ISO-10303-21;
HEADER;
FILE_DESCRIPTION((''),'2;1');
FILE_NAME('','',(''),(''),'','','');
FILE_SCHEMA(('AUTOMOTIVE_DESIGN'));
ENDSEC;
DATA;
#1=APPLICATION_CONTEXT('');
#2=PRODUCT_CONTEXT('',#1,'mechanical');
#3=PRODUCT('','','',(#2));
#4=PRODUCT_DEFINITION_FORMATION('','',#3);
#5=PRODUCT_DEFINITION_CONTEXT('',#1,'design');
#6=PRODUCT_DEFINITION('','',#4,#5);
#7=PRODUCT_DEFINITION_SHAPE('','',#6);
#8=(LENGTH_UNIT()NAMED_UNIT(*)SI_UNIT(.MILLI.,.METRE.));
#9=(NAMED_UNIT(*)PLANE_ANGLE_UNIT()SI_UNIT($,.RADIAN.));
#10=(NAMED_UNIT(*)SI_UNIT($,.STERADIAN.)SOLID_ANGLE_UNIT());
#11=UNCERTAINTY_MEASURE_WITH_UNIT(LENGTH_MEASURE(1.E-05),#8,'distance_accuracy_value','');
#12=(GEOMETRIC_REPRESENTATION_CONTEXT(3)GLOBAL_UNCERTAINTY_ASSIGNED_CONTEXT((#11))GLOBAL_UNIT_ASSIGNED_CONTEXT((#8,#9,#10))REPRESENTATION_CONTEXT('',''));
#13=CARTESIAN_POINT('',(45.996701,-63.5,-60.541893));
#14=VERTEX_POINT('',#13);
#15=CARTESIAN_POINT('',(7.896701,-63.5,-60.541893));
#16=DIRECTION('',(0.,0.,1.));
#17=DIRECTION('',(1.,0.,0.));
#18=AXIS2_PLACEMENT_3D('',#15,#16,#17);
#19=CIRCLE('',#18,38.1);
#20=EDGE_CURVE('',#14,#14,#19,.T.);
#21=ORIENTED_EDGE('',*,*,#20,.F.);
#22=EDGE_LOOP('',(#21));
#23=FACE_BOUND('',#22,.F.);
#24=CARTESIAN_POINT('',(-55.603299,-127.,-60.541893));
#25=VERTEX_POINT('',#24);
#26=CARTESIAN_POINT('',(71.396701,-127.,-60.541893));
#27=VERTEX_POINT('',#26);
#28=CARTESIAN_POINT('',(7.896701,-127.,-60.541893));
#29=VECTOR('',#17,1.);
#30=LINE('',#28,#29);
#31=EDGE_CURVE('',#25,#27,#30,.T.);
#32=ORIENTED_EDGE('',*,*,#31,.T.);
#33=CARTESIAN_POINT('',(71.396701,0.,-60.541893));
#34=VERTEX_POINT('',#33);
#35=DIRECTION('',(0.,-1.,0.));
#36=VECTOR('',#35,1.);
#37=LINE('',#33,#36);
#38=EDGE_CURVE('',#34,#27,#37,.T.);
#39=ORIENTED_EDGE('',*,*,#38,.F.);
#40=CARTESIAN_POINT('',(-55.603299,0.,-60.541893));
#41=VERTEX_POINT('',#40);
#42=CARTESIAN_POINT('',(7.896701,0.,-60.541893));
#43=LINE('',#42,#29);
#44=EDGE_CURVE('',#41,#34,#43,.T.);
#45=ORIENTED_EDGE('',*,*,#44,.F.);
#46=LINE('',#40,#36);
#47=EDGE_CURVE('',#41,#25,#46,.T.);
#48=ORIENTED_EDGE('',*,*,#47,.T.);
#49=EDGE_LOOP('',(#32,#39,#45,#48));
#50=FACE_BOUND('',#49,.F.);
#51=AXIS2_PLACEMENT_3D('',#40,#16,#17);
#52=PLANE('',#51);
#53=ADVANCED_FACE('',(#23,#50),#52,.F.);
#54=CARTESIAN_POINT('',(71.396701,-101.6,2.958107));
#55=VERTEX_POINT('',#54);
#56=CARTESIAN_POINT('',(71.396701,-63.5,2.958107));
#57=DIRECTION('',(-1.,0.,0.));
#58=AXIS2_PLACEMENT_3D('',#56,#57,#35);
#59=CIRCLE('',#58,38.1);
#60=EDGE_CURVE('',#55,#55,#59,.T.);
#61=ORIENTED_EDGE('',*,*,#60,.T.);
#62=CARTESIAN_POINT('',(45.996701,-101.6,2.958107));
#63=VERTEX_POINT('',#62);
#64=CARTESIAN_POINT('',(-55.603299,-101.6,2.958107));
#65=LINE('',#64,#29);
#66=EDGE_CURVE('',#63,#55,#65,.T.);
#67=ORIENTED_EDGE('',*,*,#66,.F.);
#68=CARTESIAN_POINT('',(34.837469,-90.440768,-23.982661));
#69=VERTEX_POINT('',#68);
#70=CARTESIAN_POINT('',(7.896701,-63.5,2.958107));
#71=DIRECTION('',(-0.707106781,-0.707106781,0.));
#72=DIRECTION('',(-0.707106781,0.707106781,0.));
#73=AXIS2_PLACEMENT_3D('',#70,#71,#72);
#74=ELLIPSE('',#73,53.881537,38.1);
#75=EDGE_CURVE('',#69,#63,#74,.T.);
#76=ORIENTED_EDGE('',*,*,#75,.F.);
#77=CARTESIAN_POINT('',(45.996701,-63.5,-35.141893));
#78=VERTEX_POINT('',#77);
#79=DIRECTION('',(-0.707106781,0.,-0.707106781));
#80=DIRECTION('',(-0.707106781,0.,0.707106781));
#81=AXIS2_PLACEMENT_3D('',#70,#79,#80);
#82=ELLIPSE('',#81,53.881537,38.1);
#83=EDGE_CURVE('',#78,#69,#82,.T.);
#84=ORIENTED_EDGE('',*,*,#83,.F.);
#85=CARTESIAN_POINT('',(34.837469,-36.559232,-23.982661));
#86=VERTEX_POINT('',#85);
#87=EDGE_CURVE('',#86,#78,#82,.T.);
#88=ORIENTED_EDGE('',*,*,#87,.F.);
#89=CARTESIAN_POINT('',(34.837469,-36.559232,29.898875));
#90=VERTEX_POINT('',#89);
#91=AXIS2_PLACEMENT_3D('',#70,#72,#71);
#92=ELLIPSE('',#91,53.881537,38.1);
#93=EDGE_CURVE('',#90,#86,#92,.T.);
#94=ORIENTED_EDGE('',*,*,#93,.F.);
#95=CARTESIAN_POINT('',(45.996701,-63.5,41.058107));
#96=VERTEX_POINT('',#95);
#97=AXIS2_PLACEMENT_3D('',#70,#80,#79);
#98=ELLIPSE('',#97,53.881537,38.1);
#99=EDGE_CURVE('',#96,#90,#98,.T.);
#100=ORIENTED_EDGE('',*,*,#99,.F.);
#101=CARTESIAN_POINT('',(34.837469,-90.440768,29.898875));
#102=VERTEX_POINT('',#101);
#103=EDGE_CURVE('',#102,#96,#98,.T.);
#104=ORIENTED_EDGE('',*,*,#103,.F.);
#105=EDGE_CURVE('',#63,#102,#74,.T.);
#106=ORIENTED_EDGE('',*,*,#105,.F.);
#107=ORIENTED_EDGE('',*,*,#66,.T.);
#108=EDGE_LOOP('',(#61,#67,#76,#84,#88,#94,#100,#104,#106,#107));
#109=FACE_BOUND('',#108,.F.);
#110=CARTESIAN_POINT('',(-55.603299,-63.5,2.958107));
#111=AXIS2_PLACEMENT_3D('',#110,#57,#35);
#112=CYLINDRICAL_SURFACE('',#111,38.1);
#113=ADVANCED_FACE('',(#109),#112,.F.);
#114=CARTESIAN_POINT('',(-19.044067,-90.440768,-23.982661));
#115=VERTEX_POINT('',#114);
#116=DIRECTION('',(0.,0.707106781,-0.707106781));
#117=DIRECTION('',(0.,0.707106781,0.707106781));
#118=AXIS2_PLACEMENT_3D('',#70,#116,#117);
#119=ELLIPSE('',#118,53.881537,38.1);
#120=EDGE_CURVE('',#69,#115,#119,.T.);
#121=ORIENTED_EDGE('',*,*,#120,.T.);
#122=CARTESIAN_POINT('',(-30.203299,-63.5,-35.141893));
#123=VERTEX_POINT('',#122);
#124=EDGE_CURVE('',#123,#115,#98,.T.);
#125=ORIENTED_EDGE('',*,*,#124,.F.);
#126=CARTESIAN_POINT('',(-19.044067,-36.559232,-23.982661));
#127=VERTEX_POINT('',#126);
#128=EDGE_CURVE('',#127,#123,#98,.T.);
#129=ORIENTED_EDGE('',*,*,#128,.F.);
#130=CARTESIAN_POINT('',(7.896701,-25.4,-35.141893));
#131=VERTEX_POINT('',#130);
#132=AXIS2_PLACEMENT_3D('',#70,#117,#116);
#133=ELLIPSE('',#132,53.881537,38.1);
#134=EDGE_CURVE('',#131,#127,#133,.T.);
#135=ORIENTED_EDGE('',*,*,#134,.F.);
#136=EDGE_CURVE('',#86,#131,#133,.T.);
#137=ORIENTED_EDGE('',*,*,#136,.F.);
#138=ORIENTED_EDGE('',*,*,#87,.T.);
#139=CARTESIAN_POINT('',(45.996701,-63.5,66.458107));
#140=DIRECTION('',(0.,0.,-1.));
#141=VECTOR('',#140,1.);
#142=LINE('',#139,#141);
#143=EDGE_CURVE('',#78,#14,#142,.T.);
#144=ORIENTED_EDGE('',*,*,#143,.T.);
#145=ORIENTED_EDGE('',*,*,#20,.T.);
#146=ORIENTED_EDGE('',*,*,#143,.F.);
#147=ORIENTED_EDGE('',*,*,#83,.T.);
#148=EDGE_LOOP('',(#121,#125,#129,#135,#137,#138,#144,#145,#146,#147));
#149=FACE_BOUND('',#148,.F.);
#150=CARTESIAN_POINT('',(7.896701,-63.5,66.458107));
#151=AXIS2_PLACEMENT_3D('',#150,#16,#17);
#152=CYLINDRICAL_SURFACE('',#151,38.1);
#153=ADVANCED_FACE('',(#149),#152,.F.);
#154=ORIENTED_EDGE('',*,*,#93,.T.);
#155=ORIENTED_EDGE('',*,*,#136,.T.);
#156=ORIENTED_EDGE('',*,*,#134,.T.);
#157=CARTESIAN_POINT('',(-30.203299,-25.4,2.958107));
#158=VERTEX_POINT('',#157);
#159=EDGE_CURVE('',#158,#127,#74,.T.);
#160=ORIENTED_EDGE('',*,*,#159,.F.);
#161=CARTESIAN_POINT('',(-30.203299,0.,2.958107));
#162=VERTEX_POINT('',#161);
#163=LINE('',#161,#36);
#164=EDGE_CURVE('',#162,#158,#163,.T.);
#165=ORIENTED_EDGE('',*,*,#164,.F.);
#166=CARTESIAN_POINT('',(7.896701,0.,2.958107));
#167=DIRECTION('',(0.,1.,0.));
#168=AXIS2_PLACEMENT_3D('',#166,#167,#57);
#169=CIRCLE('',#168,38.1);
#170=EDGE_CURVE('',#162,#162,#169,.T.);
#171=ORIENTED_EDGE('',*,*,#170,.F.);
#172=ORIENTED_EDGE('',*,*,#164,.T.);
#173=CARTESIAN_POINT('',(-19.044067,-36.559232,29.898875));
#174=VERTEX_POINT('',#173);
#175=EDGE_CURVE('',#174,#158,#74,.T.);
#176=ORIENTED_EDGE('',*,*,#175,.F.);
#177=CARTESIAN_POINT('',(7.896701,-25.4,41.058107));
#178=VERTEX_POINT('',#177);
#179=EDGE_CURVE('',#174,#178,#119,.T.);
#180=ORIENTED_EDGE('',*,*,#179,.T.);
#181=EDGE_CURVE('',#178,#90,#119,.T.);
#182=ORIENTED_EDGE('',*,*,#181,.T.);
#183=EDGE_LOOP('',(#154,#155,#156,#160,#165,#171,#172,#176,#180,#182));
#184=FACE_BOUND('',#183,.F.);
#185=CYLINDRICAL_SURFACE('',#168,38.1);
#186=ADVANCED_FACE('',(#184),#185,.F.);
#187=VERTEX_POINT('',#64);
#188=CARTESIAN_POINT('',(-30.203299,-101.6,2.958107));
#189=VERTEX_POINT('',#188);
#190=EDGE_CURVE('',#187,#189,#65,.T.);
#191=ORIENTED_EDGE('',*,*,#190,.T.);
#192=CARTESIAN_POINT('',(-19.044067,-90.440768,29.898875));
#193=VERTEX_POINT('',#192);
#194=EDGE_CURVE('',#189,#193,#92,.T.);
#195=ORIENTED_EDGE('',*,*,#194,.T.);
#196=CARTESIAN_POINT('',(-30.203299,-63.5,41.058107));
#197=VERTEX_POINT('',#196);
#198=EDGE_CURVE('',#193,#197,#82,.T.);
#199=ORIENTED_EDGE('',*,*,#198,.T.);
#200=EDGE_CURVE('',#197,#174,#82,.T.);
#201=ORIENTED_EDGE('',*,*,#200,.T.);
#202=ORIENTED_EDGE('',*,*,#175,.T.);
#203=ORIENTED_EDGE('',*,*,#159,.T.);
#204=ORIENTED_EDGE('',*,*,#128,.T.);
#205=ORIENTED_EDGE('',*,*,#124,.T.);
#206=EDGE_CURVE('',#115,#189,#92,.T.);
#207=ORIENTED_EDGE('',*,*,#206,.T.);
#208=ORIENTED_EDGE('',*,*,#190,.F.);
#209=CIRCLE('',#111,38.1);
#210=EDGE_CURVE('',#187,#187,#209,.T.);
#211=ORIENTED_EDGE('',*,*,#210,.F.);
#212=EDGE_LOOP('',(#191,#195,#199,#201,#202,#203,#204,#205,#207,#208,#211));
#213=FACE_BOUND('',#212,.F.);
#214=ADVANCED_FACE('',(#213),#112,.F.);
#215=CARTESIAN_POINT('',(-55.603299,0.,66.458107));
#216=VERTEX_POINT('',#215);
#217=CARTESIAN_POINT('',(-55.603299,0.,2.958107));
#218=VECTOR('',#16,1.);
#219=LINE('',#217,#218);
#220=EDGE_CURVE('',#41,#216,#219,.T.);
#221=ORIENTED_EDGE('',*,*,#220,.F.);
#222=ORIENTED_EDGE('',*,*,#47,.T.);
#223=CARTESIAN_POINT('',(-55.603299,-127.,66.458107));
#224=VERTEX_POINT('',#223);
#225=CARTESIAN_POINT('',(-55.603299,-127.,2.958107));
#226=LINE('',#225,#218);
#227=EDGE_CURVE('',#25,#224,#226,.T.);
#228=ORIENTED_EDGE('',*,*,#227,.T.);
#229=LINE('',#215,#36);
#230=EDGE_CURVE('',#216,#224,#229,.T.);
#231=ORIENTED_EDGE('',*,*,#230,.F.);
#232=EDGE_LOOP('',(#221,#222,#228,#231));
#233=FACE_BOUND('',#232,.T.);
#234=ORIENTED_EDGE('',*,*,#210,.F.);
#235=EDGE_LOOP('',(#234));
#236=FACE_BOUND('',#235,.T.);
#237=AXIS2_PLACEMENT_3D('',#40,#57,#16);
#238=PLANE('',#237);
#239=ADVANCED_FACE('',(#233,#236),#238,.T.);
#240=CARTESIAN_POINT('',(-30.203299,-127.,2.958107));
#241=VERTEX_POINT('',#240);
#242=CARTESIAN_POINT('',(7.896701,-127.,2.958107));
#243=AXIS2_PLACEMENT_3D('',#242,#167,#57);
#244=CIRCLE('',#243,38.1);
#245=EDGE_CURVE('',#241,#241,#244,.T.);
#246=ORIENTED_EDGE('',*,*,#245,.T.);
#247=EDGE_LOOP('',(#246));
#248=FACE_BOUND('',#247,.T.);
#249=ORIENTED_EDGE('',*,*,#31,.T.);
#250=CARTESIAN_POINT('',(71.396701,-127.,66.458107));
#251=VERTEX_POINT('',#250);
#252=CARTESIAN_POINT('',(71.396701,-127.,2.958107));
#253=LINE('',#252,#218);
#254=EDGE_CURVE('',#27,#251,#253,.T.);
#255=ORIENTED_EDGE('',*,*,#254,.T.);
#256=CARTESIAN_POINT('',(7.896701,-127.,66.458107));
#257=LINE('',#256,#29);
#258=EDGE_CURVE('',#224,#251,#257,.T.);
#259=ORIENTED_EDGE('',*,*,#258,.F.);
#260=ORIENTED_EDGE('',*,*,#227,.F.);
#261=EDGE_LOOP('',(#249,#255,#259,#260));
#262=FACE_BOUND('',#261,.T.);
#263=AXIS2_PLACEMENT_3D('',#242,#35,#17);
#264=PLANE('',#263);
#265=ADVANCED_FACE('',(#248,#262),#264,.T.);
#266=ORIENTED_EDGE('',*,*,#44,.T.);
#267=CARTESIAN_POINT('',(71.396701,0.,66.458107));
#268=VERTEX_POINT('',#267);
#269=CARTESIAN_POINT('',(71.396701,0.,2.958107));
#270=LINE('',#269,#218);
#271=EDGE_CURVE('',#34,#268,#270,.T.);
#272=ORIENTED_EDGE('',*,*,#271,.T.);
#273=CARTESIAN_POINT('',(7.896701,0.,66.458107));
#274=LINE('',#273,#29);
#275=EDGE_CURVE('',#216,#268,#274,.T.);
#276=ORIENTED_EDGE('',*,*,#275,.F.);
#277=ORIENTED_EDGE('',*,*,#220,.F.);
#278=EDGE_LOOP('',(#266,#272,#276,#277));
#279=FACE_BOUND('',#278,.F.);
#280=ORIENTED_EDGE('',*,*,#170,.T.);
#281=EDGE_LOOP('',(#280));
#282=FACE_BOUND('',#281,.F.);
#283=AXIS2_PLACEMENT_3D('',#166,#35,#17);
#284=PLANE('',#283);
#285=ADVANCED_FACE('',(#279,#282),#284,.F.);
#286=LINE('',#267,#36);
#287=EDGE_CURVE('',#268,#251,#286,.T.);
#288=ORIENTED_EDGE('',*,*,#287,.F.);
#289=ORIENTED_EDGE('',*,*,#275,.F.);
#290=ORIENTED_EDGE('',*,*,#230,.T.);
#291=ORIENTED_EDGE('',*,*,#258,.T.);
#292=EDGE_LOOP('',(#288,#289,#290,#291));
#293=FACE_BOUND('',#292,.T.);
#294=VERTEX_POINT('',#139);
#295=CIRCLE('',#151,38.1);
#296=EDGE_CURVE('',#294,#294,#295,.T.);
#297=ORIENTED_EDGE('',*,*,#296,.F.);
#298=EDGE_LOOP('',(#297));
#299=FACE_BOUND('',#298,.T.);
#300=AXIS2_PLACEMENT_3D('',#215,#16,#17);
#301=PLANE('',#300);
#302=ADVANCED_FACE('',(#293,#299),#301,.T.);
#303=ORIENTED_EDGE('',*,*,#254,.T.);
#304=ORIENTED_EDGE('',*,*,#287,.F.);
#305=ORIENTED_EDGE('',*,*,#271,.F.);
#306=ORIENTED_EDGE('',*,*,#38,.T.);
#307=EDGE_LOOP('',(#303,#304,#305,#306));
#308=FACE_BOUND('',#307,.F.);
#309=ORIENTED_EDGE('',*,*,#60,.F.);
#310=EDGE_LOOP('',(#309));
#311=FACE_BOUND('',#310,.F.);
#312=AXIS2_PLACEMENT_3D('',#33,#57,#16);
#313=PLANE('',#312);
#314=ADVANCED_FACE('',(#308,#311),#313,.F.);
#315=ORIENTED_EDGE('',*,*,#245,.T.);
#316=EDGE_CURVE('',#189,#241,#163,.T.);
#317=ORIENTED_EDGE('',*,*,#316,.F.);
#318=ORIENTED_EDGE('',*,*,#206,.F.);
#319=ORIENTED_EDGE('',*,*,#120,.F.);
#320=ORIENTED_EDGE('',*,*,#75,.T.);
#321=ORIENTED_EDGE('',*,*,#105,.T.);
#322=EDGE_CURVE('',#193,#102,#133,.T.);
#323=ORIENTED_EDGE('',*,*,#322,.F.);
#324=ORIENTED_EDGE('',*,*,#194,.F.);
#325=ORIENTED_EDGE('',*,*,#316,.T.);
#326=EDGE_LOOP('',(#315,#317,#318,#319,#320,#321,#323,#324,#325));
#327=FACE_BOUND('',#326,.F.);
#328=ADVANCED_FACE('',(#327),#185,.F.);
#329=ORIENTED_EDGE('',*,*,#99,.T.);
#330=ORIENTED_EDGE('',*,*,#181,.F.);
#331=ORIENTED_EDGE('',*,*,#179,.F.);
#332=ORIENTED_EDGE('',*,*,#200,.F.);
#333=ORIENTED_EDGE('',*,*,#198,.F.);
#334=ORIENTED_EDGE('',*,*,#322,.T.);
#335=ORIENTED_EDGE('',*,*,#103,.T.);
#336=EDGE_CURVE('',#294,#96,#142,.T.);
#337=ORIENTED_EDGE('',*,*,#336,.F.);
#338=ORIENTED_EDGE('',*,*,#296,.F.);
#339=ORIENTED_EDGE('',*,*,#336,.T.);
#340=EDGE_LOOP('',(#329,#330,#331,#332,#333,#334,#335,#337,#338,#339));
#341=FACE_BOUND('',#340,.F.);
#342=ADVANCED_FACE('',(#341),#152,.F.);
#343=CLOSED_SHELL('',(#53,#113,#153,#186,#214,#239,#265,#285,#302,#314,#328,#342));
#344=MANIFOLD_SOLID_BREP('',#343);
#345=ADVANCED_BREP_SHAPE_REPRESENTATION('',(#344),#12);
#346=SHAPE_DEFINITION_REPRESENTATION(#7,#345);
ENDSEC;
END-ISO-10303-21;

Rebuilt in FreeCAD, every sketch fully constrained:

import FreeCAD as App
import Part
import Sketcher

V = App.Vector
Q = App.Units.Quantity

doc = App.newDocument("Part")
body = doc.addObject("PartDesign::Body", "Body")

# Sketch on XZ plane
sketch1 = body.newObject("Sketcher::SketchObject", "Sketch")
sketch1.AttachmentSupport = (doc.getObject("XZ_Plane"), [""])
sketch1.MapMode = "FlatFace"
sketch1.addGeometry(Part.LineSegment(V(-55.603299, 66.458107, 0), V(-55.603299, -60.541893, 0)), False)
sketch1.addGeometry(Part.LineSegment(V(-55.603299, -60.541893, 0), V(71.396701, -60.541893, 0)), False)
sketch1.addGeometry(Part.LineSegment(V(71.396701, -60.541893, 0), V(71.396701, 66.458107, 0)), False)
sketch1.addGeometry(Part.LineSegment(V(71.396701, 66.458107, 0), V(-55.603299, 66.458107, 0)), False)
sketch1.addConstraint(Sketcher.Constraint("Coincident", 0, 2, 1, 1))
sketch1.addConstraint(Sketcher.Constraint("Coincident", 1, 2, 2, 1))
sketch1.addConstraint(Sketcher.Constraint("Coincident", 2, 2, 3, 1))
sketch1.addConstraint(Sketcher.Constraint("Coincident", 3, 2, 0, 1))
sketch1.addConstraint(Sketcher.Constraint("Vertical", 0))
sketch1.addConstraint(Sketcher.Constraint("Horizontal", 1))
sketch1.addConstraint(Sketcher.Constraint("Vertical", 2))
sketch1.addConstraint(Sketcher.Constraint("Horizontal", 3))
sketch1.addConstraint(Sketcher.Constraint("Equal", 3, 0))
sketch1.addConstraint(Sketcher.Constraint("DistanceX", 1, 1, 1, 2, Q("5 in")))
sketch1.addConstraint(Sketcher.Constraint("DistanceX", 0, 2, -1, 1, 55.603299))
sketch1.addConstraint(Sketcher.Constraint("DistanceY", 0, 2, -1, 1, 60.541893))
pad1 = body.newObject("PartDesign::Pad", "Pad")
pad1.Profile = sketch1
pad1.Length = Q("5 in")

# Sketch on YZ plane
sketch2 = body.newObject("Sketcher::SketchObject", "Sketch001")
sketch2.AttachmentSupport = (doc.getObject("YZ_Plane"), [""])
sketch2.MapMode = "FlatFace"
sketch2.AttachmentOffset = App.Placement(V(0, 0, -55.603299), App.Rotation())
sketch2.addGeometry(Part.Circle(V(-63.5, 2.958107, 0), V(0, 0, 1), 38.1), False)
sketch2.addConstraint(Sketcher.Constraint("Diameter", 0, Q("3 in")))
sketch2.addConstraint(Sketcher.Constraint("DistanceX", 0, 3, -1, 1, Q("2.5 in")))
sketch2.addConstraint(Sketcher.Constraint("DistanceY", -1, 1, 0, 3, 2.958107))
pocket1 = body.newObject("PartDesign::Pocket", "Pocket")
pocket1.Profile = sketch2
pocket1.Type = "ThroughAll"
pocket1.Reversed = True

# Sketch on XZ plane
sketch3 = body.newObject("Sketcher::SketchObject", "Sketch002")
sketch3.AttachmentSupport = (doc.getObject("XZ_Plane"), [""])
sketch3.MapMode = "FlatFace"
sketch3.addGeometry(Part.Circle(V(7.896701, 2.958107, 0), V(0, 0, 1), 38.1), False)
sketch3.addConstraint(Sketcher.Constraint("Diameter", 0, Q("3 in")))
sketch3.addConstraint(Sketcher.Constraint("DistanceX", -1, 1, 0, 3, 7.896701))
sketch3.addConstraint(Sketcher.Constraint("DistanceY", -1, 1, 0, 3, 2.958107))
pocket2 = body.newObject("PartDesign::Pocket", "Pocket001")
pocket2.Profile = sketch3
pocket2.Type = "ThroughAll"
pocket2.Reversed = True

# Sketch on XY plane
sketch4 = body.newObject("Sketcher::SketchObject", "Sketch003")
sketch4.AttachmentSupport = (doc.getObject("XY_Plane"), [""])
sketch4.MapMode = "FlatFace"
sketch4.AttachmentOffset = App.Placement(V(0, 0, 66.458107), App.Rotation())
sketch4.addGeometry(Part.Circle(V(7.896701, -63.5, 0), V(0, 0, 1), 38.1), False)
sketch4.addConstraint(Sketcher.Constraint("Diameter", 0, Q("3 in")))
sketch4.addConstraint(Sketcher.Constraint("DistanceY", 0, 3, -1, 1, Q("2.5 in")))
sketch4.addConstraint(Sketcher.Constraint("DistanceX", -1, 1, 0, 3, 7.896701))
pocket3 = body.newObject("PartDesign::Pocket", "Pocket002")
pocket3.Profile = sketch4
pocket3.Type = "ThroughAll"

doc.recompute()
